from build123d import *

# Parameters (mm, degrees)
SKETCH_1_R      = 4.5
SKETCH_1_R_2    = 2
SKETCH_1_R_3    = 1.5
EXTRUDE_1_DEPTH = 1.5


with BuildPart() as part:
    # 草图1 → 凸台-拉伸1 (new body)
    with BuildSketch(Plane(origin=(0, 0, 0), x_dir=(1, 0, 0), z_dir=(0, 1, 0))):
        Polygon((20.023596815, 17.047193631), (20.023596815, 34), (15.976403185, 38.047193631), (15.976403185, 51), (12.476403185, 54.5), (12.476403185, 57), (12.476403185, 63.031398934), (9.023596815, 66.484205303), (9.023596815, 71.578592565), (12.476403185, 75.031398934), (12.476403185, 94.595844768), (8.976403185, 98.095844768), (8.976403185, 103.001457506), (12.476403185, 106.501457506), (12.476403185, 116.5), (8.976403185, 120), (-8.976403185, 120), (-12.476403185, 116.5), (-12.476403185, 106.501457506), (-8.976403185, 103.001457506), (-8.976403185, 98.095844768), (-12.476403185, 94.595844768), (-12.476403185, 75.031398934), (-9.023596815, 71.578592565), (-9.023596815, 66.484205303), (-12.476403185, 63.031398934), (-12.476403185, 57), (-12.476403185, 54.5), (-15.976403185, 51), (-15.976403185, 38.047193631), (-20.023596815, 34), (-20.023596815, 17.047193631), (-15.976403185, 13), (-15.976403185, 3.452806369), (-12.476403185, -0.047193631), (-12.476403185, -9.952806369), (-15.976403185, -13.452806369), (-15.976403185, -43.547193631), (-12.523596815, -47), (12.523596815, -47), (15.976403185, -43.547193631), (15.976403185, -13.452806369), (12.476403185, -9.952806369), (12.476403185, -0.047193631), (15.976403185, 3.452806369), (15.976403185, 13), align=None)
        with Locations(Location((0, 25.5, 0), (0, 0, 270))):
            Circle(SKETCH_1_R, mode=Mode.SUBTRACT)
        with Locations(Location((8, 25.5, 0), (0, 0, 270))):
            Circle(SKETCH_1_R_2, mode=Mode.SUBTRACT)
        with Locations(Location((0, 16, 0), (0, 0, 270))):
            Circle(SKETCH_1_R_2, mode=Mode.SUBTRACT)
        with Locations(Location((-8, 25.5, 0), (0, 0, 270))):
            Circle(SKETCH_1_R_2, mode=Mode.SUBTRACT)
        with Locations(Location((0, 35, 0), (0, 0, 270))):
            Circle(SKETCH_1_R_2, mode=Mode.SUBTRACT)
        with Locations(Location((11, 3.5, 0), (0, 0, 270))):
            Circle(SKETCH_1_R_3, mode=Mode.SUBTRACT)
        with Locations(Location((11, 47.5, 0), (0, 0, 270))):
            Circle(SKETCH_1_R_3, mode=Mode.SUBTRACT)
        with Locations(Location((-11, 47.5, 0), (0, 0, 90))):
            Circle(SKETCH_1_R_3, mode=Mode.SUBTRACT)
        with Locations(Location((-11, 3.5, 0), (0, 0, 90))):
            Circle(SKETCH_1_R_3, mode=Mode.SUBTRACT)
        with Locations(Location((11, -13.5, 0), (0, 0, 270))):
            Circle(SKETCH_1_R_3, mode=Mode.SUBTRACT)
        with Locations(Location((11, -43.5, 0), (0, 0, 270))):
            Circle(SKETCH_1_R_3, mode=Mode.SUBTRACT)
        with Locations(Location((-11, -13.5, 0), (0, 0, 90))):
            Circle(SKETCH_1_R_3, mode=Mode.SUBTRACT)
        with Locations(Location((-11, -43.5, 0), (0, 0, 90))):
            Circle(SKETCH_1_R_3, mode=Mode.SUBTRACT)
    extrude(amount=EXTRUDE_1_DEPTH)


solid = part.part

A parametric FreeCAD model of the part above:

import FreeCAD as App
import Part
import Sketcher
Q = App.Units.Quantity


def add_polygon(sketch, points):
    """Adds a closed chain of lines whose ends are joined by coincident constraints."""
    first, n = sketch.GeometryCount, len(points)
    for a, b in zip(points, points[1:] + points[:1]):
        sketch.addGeometry(Part.LineSegment(App.Vector(*a, 0), App.Vector(*b, 0)), False)
    for i in range(n):
        sketch.addConstraint(Sketcher.Constraint("Coincident", first + i, 2, first + (i + 1) % n, 1))

doc = App.newDocument("Part")
body = doc.addObject("PartDesign::Body", "Body")

# Sketch on XZ plane
sketch1 = doc.addObject("Sketcher::SketchObject", "Sketch")
body.addObject(sketch1)
sketch1.AttachmentSupport = (doc.XZ_Plane, [""])
sketch1.MapMode = "FlatFace"
add_polygon(sketch1, [(20, -17), (20, -34), (16, -38), (16, -51), (12.5, -54.5), (12.5, -63), (9, -66.5), (9, -71.6), (12.5, -75), (12.5, -94.6), (9, -98.1), (9, -103), (12.5, -106.5), (12.5, -116.5), (9, -120), (-9, -120), (-12.5, -116.5), (-12.5, -106.5), (-9, -103), (-9, -98.1), (-12.5, -94.6), (-12.5, -75), (-9, -71.6), (-9, -66.5), (-12.5, -63), (-12.5, -54.5), (-16, -51), (-16, -38), (-20, -34), (-20, -17), (-16, -13), (-16, -3.5), (-12.5, 0), (-12.5, 10), (-16, 13.5), (-16, 43.5), (-12.5, 47), (12.5, 47), (16, 43.5), (16, 13.5), (12.5, 10), (12.5, 0), (16, -3.5), (16, -13)])  # lines 0-43
sketch1.addGeometry(Part.Circle(App.Vector(-11, 43.5, 0), App.Vector(0, 0, 1), 1.5), False)  # 44
sketch1.addGeometry(Part.Circle(App.Vector(-11, 13.5, 0), App.Vector(0, 0, 1), 1.5), False)  # 45
sketch1.addGeometry(Part.Circle(App.Vector(11, 43.5, 0), App.Vector(0, 0, 1), 1.5), False)  # 46
sketch1.addGeometry(Part.Circle(App.Vector(11, 13.5, 0), App.Vector(0, 0, 1), 1.5), False)  # 47
sketch1.addGeometry(Part.Circle(App.Vector(-11, -3.5, 0), App.Vector(0, 0, 1), 1.5), False)  # 48
sketch1.addGeometry(Part.Circle(App.Vector(-8, -25.5, 0), App.Vector(0, 0, 1), 2), False)  # 49
sketch1.addGeometry(Part.Circle(App.Vector(-11, -47.5, 0), App.Vector(0, 0, 1), 1.5), False)  # 50
sketch1.addGeometry(Part.Circle(App.Vector(0, -16, 0), App.Vector(0, 0, 1), 2), False)  # 51
sketch1.addGeometry(Part.Circle(App.Vector(11, -3.5, 0), App.Vector(0, 0, 1), 1.5), False)  # 52
sketch1.addGeometry(Part.Circle(App.Vector(0, -25.5, 0), App.Vector(0, 0, 1), 4.5), False)  # 53
sketch1.addGeometry(Part.Circle(App.Vector(0, -35, 0), App.Vector(0, 0, 1), 2), False)  # 54
sketch1.addGeometry(Part.Circle(App.Vector(8, -25.5, 0), App.Vector(0, 0, 1), 2), False)  # 55
sketch1.addGeometry(Part.Circle(App.Vector(11, -47.5, 0), App.Vector(0, 0, 1), 1.5), False)  # 56
sketch1.addConstraint([
    Sketcher.Constraint("Vertical", 0),
    Sketcher.Constraint("Vertical", 2),
    Sketcher.Constraint("Vertical", 4),
    Sketcher.Constraint("Vertical", 6),
    Sketcher.Constraint("Vertical", 8),
    Sketcher.Constraint("Vertical", 10),
    Sketcher.Constraint("Vertical", 12),
    Sketcher.Constraint("Horizontal", 14),
    Sketcher.Constraint("Vertical", 16),
    Sketcher.Constraint("Vertical", 18),
    Sketcher.Constraint("Vertical", 20),
    Sketcher.Constraint("Vertical", 22),
    Sketcher.Constraint("Vertical", 24),
    Sketcher.Constraint("Vertical", 26),
    Sketcher.Constraint("Vertical", 28),
    Sketcher.Constraint("Vertical", 30),
    Sketcher.Constraint("Vertical", 32),
    Sketcher.Constraint("Vertical", 34),
    Sketcher.Constraint("Horizontal", 36),
    Sketcher.Constraint("Vertical", 38),
    Sketcher.Constraint("Vertical", 40),
    Sketcher.Constraint("Vertical", 42),
    Sketcher.Constraint("Equal", 44, 45),
    Sketcher.Constraint("Equal", 45, 46),
    Sketcher.Constraint("Equal", 46, 47),
    Sketcher.Constraint("Equal", 47, 48),
    Sketcher.Constraint("Equal", 48, 50),
    Sketcher.Constraint("Equal", 49, 51),
    Sketcher.Constraint("Equal", 50, 52),
    Sketcher.Constraint("Equal", 51, 54),
    Sketcher.Constraint("Equal", 54, 55),
    Sketcher.Constraint("Equal", 52, 56),
    Sketcher.Constraint("Symmetric", 44, 3, 46, 3, -2),
    Sketcher.Constraint("Symmetric", 45, 3, 47, 3, -2),
    Sketcher.Constraint("Symmetric", 48, 3, 52, 3, -2),
    Sketcher.Constraint("Symmetric", 49, 3, 55, 3, -2),
    Sketcher.Constraint("Symmetric", 50, 3, 56, 3, -2),
    Sketcher.Constraint("Symmetric", 12, 2, 15, 2, -2),
    Sketcher.Constraint("Symmetric", 10, 2, 17, 2, -2),
    Sketcher.Constraint("Symmetric", 8, 2, 19, 2, -2),
    Sketcher.Constraint("Symmetric", 6, 2, 21, 2, -2),
    Sketcher.Constraint("Symmetric", 4, 2, 23, 2, -2),
    Sketcher.Constraint("Symmetric", 2, 2, 25, 2, -2),
    Sketcher.Constraint("Symmetric", 0, 2, 27, 2, -2),
    Sketcher.Constraint("Symmetric", 34, 2, 37, 2, -2),
    Sketcher.Constraint("Symmetric", 32, 2, 39, 2, -2),
    Sketcher.Constraint("Symmetric", 30, 2, 41, 2, -2),
    Sketcher.Constraint("PointOnObject", 51, 3, -2),
    Sketcher.Constraint("PointOnObject", 53, 3, -2),
    Sketcher.Constraint("PointOnObject", 54, 3, -2),
    Sketcher.Constraint("Parallel", 1, 3),
    Sketcher.Constraint("Parallel", 3, 5),
    Sketcher.Constraint("Perpendicular", 5, 7),
    Sketcher.Constraint("Perpendicular", 7, 9),
    Sketcher.Constraint("Perpendicular", 9, 11),
    Sketcher.Constraint("Perpendicular", 11, 13),
    Sketcher.Constraint("Perpendicular", 13, 15),
    Sketcher.Constraint("Perpendicular", 15, 17),
    Sketcher.Constraint("Perpendicular", 17, 19),
    Sketcher.Constraint("Perpendicular", 19, 21),
    Sketcher.Constraint("Perpendicular", 21, 23),
    Sketcher.Constraint("Parallel", 23, 25),
    Sketcher.Constraint("Parallel", 25, 27),
    Sketcher.Constraint("Perpendicular", 27, 29),
    Sketcher.Constraint("Parallel", 29, 31),
    Sketcher.Constraint("Perpendicular", 31, 33),
    Sketcher.Constraint("Perpendicular", 33, 35),
    Sketcher.Constraint("Perpendicular", 35, 37),
    Sketcher.Constraint("Perpendicular", 37, 39),
    Sketcher.Constraint("Perpendicular", 39, 41),
    Sketcher.Constraint("Parallel", 41, 43),
    Sketcher.Constraint("Horizontal", 49, 3, 53, 3),
    Sketcher.Constraint("Horizontal", 11, 2, 16, 2),
    Sketcher.Constraint("Horizontal", 29, 2, 42, 2),
    Sketcher.Constraint("Vertical", 44, 3, 45, 3),
    Sketcher.Constraint("Vertical", 45, 3, 48, 3),
    Sketcher.Constraint("Vertical", 48, 3, 50, 3),
    Sketcher.Constraint("Vertical", 4, 2, 7, 2),
    Sketcher.Constraint("Vertical", 8, 2, 11, 2),
    Sketcher.Constraint("Vertical", 10, 2, 13, 2),
    Sketcher.Constraint("Vertical", 26, 2, 29, 2),
    Sketcher.Constraint("Vertical", 24, 2, 31, 2),
    Sketcher.Constraint("Vertical", 30, 2, 33, 2),
    Sketcher.Constraint("Equal", 3, 9),
    Sketcher.Constraint("Equal", 23, 35),
    Sketcher.Constraint("Diameter", 44, Q("3 mm")),
    Sketcher.Constraint("Diameter", 49, Q("4 mm")),
    Sketcher.Constraint("Diameter", 53, Q("9 mm")),
    Sketcher.Constraint("DistanceX", 44, 3, -1, 1, Q("11 mm")),
    Sketcher.Constraint("DistanceX", 49, 3, -1, 1, Q("8 mm")),
    Sketcher.Constraint("DistanceY", 51, 3, -1, 1, Q("16 mm")),
    Sketcher.Constraint("DistanceY", 54, 3, -1, 1, Q("35 mm")),
    Sketcher.Constraint("DistanceY", 0, 2, -1, 1, Q("34 mm")),
    Sketcher.Constraint("DistanceY", 2, 2, -1, 1, Q("51 mm")),
    Sketcher.Constraint("DistanceY", 13, 2, -1, 1, Q("120 mm")),
    Sketcher.Constraint("DistanceY", 29, 2, -1, 1, Q("13 mm")),
    Sketcher.Constraint("DistanceY", -1, 1, 35, 2, Q("47 mm")),
    Sketcher.Constraint("DistanceY", 45, 3, 44, 3, Q("30 mm")),
    Sketcher.Constraint("DistanceY", 48, 3, 45, 3, Q("17 mm")),
    Sketcher.Constraint("DistanceY", 49, 3, 48, 3, Q("22 mm")),
    Sketcher.Constraint("DistanceY", 50, 3, 49, 3, Q("22 mm")),
    Sketcher.Constraint("DistanceY", 3, 2, 56, 3, Q("7 mm")),
    Sketcher.Constraint("DistanceY", 7, 2, 4, 2, Q("12 mm")),
    Sketcher.Constraint("DistanceY", -1, 1, 44, 3, Q("43.5 mm")),
    Sketcher.Constraint("DistanceX", 20, 2, 6, 2, Q("21.5 mm")),
    Sketcher.Constraint("DistanceY", 4, 2, 4, 1, Q("8.531399 mm")),
    Sketcher.Constraint("DistanceX", 14, 2, 14, 1, Q("17.952806 mm")),
    Sketcher.Constraint("DistanceY", 0, 2, 0, 1, Q("16.952806 mm")),
    Sketcher.Constraint("DistanceY", 8, 2, 8, 1, Q("19.564446 mm")),
    Sketcher.Constraint("DistanceY", 10, 2, 10, 1, Q("4.905613 mm")),
    Sketcher.Constraint("DistanceY", 30, 1, 30, 2, Q("9.547194 mm")),
    Sketcher.Constraint("DistanceY", 32, 1, 32, 2, Q("9.905613 mm")),
])
pad1 = doc.addObject("PartDesign::Pad", "Pad")
body.addObject(pad1)
pad1.Profile = sketch1
pad1.Length = 1.5
pad1.Reversed = True

doc.recompute()
